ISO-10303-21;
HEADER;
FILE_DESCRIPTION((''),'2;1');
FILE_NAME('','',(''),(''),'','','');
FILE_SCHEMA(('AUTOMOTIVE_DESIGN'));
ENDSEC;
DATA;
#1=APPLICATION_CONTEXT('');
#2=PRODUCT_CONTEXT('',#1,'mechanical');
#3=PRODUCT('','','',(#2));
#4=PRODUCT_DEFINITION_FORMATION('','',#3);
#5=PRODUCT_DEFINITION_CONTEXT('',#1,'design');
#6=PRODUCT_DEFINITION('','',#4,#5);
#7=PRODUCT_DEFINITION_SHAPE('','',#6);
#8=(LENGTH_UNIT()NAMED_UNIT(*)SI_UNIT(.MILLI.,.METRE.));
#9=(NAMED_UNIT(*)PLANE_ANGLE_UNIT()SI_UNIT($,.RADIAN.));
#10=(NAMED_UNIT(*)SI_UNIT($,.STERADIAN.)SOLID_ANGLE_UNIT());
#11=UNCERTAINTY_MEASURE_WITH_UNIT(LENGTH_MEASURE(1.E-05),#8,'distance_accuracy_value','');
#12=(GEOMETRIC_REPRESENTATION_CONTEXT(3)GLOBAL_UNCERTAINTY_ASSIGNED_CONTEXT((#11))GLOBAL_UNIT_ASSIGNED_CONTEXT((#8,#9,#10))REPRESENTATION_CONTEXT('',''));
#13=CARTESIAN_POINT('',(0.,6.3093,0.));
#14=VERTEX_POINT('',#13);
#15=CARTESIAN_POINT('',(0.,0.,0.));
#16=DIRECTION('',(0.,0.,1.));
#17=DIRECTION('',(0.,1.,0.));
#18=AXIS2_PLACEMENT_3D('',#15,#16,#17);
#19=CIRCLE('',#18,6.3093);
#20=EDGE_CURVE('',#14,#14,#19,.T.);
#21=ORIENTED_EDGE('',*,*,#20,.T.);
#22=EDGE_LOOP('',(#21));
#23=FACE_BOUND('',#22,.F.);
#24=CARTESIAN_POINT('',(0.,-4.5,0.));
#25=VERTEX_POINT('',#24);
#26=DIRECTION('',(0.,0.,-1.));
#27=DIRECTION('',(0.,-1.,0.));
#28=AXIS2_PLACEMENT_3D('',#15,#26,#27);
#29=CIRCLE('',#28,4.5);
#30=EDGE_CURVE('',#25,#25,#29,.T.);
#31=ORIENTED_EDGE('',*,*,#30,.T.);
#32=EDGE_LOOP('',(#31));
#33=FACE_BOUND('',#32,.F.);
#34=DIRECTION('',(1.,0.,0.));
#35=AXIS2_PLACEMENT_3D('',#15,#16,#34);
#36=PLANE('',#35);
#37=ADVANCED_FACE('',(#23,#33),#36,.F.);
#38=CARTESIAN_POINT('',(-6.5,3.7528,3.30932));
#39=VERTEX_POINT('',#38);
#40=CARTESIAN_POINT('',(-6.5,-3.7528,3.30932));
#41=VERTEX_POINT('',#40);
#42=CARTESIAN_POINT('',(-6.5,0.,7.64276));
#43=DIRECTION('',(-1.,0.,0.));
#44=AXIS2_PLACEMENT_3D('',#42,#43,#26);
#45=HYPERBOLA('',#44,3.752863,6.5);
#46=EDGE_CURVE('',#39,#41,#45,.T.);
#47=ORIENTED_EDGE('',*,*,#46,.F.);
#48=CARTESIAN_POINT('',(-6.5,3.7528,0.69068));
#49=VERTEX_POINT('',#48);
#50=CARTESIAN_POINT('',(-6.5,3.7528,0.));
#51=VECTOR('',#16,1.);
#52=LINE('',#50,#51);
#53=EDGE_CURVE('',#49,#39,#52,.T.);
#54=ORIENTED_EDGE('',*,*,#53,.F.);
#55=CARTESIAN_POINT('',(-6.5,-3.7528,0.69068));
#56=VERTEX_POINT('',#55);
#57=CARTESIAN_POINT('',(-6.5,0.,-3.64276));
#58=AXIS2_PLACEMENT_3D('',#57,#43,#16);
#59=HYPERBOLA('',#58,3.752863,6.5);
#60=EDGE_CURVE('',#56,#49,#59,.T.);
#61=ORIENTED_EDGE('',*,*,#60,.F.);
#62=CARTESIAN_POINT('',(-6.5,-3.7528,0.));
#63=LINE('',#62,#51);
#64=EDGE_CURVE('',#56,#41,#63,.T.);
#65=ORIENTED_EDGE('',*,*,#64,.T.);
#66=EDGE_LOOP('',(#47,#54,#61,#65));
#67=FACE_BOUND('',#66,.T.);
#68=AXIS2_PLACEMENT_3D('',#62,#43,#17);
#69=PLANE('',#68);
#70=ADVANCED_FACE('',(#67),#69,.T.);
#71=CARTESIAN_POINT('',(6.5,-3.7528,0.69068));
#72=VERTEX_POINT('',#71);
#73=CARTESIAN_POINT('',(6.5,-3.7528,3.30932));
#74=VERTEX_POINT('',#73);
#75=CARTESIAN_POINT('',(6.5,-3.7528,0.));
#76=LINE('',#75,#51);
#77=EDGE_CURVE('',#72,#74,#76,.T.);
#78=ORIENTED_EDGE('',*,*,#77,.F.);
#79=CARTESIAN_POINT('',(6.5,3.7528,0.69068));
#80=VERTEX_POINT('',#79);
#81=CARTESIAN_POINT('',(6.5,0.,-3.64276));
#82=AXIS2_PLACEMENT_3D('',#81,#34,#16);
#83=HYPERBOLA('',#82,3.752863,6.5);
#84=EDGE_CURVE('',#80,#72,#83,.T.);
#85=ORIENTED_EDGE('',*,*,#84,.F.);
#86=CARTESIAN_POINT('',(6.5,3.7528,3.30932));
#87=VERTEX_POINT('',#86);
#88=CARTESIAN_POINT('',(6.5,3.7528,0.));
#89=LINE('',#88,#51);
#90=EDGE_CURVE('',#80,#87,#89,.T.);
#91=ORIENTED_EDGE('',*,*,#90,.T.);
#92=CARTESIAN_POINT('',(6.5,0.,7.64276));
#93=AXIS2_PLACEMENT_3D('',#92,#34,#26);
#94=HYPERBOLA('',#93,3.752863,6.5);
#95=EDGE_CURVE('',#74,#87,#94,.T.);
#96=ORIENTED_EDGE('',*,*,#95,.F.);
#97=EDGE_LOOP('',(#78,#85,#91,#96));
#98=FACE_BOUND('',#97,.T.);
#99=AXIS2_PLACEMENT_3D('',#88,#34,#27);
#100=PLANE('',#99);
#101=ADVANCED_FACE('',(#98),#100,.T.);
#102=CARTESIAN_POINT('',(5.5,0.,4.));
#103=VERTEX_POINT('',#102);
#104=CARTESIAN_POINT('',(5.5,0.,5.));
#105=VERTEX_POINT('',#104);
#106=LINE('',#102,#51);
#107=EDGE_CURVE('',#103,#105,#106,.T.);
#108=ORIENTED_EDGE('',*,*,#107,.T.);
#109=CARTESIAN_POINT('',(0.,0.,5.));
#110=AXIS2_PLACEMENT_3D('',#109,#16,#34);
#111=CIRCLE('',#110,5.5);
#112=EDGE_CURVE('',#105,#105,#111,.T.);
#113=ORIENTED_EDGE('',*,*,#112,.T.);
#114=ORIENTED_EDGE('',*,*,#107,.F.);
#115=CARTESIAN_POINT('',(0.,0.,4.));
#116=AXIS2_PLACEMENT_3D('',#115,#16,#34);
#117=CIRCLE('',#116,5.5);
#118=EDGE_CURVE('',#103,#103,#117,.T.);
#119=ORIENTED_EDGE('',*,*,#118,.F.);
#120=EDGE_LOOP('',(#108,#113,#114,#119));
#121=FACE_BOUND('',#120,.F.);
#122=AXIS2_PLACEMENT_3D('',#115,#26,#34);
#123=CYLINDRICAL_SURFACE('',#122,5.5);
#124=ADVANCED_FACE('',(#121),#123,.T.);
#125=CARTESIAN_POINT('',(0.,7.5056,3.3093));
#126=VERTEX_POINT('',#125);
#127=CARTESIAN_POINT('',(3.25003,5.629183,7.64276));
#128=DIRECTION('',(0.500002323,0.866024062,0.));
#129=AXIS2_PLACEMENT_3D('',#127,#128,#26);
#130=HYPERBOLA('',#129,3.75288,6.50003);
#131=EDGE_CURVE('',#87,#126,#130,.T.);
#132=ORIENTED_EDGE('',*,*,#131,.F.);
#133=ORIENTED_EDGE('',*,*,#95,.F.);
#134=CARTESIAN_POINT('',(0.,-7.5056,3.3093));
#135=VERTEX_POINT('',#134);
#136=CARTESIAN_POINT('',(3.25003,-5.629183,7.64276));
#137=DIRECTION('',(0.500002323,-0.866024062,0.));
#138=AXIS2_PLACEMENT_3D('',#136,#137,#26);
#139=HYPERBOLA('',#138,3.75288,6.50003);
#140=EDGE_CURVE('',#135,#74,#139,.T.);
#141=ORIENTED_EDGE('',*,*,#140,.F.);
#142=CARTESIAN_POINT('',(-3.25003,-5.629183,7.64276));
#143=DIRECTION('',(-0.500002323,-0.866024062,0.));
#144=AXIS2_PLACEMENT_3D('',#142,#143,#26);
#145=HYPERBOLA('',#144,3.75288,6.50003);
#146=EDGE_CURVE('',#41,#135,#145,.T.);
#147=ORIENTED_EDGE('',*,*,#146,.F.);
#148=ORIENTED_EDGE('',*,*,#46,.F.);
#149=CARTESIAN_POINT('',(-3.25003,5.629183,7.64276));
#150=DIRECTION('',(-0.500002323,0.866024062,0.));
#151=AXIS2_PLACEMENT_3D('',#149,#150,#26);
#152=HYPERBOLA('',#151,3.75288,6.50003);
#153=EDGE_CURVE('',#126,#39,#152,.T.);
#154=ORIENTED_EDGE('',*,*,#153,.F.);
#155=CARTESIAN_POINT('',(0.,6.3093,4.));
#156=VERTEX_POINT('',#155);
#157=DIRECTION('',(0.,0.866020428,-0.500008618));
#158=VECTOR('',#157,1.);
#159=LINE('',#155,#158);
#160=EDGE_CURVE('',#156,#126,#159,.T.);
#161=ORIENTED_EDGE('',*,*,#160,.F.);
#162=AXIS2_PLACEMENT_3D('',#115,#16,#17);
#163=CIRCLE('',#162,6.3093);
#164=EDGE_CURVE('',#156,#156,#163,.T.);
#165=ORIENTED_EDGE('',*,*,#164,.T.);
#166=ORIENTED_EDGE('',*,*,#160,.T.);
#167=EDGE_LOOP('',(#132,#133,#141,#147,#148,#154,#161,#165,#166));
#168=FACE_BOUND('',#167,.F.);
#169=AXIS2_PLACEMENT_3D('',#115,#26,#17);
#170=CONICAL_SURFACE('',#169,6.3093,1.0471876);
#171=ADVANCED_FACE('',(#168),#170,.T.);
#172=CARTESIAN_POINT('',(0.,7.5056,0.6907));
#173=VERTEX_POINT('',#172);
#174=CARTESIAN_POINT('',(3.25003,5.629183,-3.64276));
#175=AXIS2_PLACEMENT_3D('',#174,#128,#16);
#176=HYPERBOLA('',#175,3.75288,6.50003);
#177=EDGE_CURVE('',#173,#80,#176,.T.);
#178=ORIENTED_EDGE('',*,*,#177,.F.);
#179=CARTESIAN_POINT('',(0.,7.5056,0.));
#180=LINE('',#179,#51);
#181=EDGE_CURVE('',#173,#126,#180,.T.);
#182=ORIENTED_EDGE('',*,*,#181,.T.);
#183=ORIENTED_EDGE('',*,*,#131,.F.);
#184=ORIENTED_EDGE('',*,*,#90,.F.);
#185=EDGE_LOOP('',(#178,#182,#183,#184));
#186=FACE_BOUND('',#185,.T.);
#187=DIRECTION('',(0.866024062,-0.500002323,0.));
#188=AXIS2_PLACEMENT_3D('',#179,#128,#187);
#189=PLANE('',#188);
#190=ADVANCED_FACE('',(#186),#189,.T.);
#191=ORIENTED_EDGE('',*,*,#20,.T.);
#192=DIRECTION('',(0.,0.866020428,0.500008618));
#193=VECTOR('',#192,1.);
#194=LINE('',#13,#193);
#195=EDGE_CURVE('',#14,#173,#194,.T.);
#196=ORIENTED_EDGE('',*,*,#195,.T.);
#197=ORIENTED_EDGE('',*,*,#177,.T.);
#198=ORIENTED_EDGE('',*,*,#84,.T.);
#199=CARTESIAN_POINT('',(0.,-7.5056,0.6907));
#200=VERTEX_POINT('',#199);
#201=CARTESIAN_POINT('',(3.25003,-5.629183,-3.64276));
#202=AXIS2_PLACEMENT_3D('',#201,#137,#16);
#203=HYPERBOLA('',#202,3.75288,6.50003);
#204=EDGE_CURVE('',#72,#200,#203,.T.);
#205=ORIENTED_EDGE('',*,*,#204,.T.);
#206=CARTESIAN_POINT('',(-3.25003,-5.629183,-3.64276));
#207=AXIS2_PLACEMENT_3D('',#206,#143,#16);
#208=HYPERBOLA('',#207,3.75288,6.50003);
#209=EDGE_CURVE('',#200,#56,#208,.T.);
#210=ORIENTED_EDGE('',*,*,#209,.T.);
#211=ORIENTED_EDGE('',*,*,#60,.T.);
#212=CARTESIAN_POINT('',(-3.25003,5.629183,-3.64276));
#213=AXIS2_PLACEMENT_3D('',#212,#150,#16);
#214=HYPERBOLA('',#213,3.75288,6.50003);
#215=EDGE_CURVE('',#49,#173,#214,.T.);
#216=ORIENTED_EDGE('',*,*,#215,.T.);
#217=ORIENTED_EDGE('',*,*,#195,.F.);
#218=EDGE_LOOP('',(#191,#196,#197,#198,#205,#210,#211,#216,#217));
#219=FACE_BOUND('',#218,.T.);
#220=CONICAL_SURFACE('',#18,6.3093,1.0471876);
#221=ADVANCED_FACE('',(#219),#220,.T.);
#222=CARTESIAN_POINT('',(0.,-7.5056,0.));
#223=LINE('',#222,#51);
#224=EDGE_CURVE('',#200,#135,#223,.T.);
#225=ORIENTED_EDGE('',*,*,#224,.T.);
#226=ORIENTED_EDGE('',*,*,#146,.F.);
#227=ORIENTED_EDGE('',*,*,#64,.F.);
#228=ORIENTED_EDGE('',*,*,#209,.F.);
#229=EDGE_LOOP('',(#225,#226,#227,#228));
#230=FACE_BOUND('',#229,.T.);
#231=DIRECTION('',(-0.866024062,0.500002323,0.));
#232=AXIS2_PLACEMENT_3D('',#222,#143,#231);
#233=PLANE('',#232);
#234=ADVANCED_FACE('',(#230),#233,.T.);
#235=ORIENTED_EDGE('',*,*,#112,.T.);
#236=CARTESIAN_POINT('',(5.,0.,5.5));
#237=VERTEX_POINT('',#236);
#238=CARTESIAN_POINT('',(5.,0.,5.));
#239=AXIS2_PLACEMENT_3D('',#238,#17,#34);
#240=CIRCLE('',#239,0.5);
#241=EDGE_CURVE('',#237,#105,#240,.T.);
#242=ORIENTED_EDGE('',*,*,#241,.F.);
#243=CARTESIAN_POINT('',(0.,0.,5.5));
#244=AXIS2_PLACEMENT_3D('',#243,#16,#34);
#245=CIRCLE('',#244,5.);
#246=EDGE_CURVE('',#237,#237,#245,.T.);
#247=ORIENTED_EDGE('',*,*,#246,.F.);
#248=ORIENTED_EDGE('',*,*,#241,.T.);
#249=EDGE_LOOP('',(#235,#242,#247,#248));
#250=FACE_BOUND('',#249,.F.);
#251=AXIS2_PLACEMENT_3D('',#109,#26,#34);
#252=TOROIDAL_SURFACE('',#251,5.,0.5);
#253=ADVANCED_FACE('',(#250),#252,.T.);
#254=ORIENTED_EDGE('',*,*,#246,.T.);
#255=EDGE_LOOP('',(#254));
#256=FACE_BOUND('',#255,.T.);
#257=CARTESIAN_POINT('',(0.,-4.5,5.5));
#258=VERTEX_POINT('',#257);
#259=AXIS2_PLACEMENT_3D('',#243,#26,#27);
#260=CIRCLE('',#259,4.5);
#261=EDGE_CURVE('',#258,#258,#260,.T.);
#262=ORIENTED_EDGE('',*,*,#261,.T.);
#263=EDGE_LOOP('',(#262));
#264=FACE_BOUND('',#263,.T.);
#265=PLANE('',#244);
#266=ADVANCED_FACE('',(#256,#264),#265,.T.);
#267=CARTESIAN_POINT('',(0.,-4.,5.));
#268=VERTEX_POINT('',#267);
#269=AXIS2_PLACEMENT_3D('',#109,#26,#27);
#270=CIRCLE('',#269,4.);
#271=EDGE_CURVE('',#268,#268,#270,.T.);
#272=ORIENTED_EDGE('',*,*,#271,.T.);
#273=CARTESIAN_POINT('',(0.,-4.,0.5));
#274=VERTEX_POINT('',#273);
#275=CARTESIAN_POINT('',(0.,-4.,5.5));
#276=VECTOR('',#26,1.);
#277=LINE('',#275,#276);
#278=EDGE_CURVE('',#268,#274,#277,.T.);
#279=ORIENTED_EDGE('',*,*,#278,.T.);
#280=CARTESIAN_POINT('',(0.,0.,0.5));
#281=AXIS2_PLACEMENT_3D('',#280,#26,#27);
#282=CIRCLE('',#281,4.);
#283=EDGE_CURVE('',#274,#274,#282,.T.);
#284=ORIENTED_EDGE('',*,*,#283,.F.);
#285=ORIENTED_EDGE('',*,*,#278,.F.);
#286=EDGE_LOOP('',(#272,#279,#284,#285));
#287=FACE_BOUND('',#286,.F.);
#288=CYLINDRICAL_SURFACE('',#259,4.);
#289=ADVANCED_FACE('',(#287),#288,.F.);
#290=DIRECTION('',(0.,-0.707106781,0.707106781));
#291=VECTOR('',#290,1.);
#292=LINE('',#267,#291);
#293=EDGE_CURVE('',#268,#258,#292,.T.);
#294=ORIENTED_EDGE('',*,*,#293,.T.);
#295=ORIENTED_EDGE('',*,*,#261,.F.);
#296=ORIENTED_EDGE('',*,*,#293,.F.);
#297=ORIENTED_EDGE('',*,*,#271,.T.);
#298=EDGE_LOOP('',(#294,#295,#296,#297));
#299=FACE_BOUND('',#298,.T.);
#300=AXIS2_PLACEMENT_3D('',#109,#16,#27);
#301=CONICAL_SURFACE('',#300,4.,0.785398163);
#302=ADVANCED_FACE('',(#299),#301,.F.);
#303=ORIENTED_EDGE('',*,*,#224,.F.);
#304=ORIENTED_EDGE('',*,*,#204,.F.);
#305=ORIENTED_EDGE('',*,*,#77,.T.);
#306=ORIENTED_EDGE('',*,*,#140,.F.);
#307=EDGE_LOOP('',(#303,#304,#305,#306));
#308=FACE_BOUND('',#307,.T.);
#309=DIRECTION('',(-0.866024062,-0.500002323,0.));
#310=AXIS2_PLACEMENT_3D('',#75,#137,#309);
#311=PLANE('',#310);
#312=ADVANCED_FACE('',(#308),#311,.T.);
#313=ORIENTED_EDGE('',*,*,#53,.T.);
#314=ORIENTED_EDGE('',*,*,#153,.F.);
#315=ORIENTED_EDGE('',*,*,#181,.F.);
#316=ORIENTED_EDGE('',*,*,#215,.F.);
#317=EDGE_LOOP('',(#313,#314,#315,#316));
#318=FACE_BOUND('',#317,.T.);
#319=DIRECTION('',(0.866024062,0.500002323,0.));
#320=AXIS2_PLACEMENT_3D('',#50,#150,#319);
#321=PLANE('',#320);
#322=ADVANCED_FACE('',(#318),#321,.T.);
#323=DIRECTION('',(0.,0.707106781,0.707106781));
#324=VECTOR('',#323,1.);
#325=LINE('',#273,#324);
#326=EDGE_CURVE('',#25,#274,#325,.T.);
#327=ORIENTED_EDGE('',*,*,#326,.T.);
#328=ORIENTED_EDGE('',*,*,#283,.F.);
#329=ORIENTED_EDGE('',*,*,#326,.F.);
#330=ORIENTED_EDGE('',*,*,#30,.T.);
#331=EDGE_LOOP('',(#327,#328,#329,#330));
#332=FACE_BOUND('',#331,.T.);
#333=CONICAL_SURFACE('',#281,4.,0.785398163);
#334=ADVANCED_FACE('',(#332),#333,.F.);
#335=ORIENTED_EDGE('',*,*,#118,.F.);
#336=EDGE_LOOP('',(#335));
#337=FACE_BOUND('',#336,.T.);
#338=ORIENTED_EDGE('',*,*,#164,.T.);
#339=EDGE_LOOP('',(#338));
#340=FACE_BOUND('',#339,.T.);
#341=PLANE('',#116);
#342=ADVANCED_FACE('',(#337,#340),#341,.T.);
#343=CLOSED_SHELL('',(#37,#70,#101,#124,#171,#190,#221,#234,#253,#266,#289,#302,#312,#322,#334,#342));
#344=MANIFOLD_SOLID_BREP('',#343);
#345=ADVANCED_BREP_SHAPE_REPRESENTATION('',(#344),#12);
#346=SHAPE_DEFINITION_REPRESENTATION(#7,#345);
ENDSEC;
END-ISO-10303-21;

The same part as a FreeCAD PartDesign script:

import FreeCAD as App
import Part
import Sketcher
from FreeCAD import Vector
Q = App.Units.Quantity


def edges_at(feature, points):
    """Names of the edges that pass closest to the given points."""
    edges = feature.Shape.Edges
    near = lambda p: min(range(len(edges)), key=lambda i: edges[i].distToShape(Part.Vertex(*p))[0])
    return sorted({f"Edge{near(p) + 1}" for p in points})


def add_polygon(sketch, points):
    """Adds a closed chain of lines whose ends are joined by coincident constraints."""
    first, n = sketch.GeometryCount, len(points)
    for a, b in zip(points, points[1:] + points[:1]):
        sketch.addGeometry(Part.LineSegment(App.Vector(*a, 0), App.Vector(*b, 0)), False)
    for i in range(n):
        sketch.addConstraint(Sketcher.Constraint("Coincident", first + i, 2, first + (i + 1) % n, 1))

doc = App.newDocument("Part")
body = doc.addObject("PartDesign::Body", "Body")

# Sketch on XY plane
sketch1 = body.newObject("Sketcher::SketchObject", "Sketch")
sketch1.AttachmentSupport = (doc.getObject("XY_Plane"), [""])
sketch1.MapMode = "FlatFace"
add_polygon(sketch1, [(6, 4), (0, 8), (-6, 4), (-6, -4), (0, -8), (6, -4)])  # lines 0-5
sketch1.addConstraint([
    Sketcher.Constraint("Vertical", 2),
    Sketcher.Constraint("Vertical", 5),
    Sketcher.Constraint("Symmetric", 0, 2, 3, 2, -1, 1),
    Sketcher.Constraint("Symmetric", 1, 2, 4, 2, -1, 1),
    Sketcher.Constraint("PointOnObject", 0, 2, -2),
    Sketcher.Constraint("Parallel", 0, 3),
    Sketcher.Constraint("Horizontal", 2, 2, 4, 2),
    Sketcher.Constraint("DistanceX", 2, 2, 4, 2, 13.0),
    Sketcher.Constraint("Angle", 0, Q("149.9998 deg")),
    Sketcher.Constraint("DistanceY", 2, 2, 2, 1, 7.5056),
])
pad1 = body.newObject("PartDesign::Pad", "Pad")
pad1.Profile = sketch1
pad1.Length = 4

# Sketch on XY plane
sketch2 = body.newObject("Sketcher::SketchObject", "Sketch001")
sketch2.AttachmentSupport = (doc.getObject("XY_Plane"), [""])
sketch2.MapMode = "FlatFace"
sketch2.AttachmentOffset = App.Placement(Vector(0, 0, 4), App.Rotation())
sketch2.addGeometry(Part.Circle(Vector(0, 0, 0), Vector(0, 0, 1), 6), False)
sketch2.addConstraint([
    Sketcher.Constraint("Coincident", 0, 3, -1, 1),
    Sketcher.Constraint("Diameter", 0, 11.0),
])
pad2 = body.newObject("PartDesign::Pad", "Pad001")
pad2.Profile = sketch2
pad2.Length = 1.5

# Sketch on XY plane
sketch3 = body.newObject("Sketcher::SketchObject", "Sketch002")
sketch3.AttachmentSupport = (doc.getObject("XY_Plane"), [""])
sketch3.MapMode = "FlatFace"
sketch3.AttachmentOffset = App.Placement(Vector(0, 0, 5.5), App.Rotation())
sketch3.addGeometry(Part.Circle(Vector(0, 0, 0), Vector(0, 0, 1), 4), False)
sketch3.addConstraint([
    Sketcher.Constraint("Coincident", 0, 3, -1, 1),
    Sketcher.Constraint("Diameter", 0, 8.0),
])
doc.recompute()
hole = body.newObject("PartDesign::Hole", "Hole")
hole.Profile = sketch3
hole.ThreadType = "None"
hole.Diameter = 8
hole.DepthType = "ThroughAll"
doc.recompute()

chamfer = body.newObject("PartDesign::Chamfer", "Chamfer")
chamfer.Base = (hole, edges_at(hole, [(0, 4, 5.5), (0, 4, 0)]))
chamfer.Size = 0.5

# Sketch on YZ plane
sketch4 = body.newObject("Sketcher::SketchObject", "Sketch003")
sketch4.AttachmentSupport = (doc.getObject("YZ_Plane"), [""])
sketch4.MapMode = "FlatFace"
add_polygon(sketch4, [(7.5, 3.3), (7.5, 4), (6.3, 4)])  # lines 0-2
add_polygon(sketch4, [(7.5, 0), (7.5, 0.7), (6.3, 0)])  # lines 3-5
sketch4.addConstraint([
    Sketcher.Constraint("Vertical", 0),
    Sketcher.Constraint("Horizontal", 1),
    Sketcher.Constraint("Vertical", 3),
    Sketcher.Constraint("Horizontal", 5),
    Sketcher.Constraint("PointOnObject", 4, 2, -1),
    Sketcher.Constraint("Vertical", 2, 2, 3, 2),
    Sketcher.Constraint("Vertical", 1, 2, 4, 2),
    Sketcher.Constraint("Equal", 0, 3),
    Sketcher.Constraint("Angle", 2, Q("-30.0006 deg")),
    Sketcher.Constraint("DistanceY", -1, 1, 0, 2, 4.0),
    Sketcher.Constraint("DistanceX", 1, 2, 1, 1, 1.1963),
    Sketcher.Constraint("DistanceX", -1, 1, 0, 2, 7.5056),
])
groove = body.newObject("PartDesign::Groove", "Groove")
groove.Profile = sketch4
groove.ReferenceAxis = (sketch4, ["V_Axis"])
groove.Angle = 360
doc.recompute()

fillet = body.newObject("PartDesign::Fillet", "Fillet")
fillet.Base = (groove, edges_at(groove, [(-5.5, 0, 5.5)]))
fillet.Radius = 0.5

doc.recompute()
